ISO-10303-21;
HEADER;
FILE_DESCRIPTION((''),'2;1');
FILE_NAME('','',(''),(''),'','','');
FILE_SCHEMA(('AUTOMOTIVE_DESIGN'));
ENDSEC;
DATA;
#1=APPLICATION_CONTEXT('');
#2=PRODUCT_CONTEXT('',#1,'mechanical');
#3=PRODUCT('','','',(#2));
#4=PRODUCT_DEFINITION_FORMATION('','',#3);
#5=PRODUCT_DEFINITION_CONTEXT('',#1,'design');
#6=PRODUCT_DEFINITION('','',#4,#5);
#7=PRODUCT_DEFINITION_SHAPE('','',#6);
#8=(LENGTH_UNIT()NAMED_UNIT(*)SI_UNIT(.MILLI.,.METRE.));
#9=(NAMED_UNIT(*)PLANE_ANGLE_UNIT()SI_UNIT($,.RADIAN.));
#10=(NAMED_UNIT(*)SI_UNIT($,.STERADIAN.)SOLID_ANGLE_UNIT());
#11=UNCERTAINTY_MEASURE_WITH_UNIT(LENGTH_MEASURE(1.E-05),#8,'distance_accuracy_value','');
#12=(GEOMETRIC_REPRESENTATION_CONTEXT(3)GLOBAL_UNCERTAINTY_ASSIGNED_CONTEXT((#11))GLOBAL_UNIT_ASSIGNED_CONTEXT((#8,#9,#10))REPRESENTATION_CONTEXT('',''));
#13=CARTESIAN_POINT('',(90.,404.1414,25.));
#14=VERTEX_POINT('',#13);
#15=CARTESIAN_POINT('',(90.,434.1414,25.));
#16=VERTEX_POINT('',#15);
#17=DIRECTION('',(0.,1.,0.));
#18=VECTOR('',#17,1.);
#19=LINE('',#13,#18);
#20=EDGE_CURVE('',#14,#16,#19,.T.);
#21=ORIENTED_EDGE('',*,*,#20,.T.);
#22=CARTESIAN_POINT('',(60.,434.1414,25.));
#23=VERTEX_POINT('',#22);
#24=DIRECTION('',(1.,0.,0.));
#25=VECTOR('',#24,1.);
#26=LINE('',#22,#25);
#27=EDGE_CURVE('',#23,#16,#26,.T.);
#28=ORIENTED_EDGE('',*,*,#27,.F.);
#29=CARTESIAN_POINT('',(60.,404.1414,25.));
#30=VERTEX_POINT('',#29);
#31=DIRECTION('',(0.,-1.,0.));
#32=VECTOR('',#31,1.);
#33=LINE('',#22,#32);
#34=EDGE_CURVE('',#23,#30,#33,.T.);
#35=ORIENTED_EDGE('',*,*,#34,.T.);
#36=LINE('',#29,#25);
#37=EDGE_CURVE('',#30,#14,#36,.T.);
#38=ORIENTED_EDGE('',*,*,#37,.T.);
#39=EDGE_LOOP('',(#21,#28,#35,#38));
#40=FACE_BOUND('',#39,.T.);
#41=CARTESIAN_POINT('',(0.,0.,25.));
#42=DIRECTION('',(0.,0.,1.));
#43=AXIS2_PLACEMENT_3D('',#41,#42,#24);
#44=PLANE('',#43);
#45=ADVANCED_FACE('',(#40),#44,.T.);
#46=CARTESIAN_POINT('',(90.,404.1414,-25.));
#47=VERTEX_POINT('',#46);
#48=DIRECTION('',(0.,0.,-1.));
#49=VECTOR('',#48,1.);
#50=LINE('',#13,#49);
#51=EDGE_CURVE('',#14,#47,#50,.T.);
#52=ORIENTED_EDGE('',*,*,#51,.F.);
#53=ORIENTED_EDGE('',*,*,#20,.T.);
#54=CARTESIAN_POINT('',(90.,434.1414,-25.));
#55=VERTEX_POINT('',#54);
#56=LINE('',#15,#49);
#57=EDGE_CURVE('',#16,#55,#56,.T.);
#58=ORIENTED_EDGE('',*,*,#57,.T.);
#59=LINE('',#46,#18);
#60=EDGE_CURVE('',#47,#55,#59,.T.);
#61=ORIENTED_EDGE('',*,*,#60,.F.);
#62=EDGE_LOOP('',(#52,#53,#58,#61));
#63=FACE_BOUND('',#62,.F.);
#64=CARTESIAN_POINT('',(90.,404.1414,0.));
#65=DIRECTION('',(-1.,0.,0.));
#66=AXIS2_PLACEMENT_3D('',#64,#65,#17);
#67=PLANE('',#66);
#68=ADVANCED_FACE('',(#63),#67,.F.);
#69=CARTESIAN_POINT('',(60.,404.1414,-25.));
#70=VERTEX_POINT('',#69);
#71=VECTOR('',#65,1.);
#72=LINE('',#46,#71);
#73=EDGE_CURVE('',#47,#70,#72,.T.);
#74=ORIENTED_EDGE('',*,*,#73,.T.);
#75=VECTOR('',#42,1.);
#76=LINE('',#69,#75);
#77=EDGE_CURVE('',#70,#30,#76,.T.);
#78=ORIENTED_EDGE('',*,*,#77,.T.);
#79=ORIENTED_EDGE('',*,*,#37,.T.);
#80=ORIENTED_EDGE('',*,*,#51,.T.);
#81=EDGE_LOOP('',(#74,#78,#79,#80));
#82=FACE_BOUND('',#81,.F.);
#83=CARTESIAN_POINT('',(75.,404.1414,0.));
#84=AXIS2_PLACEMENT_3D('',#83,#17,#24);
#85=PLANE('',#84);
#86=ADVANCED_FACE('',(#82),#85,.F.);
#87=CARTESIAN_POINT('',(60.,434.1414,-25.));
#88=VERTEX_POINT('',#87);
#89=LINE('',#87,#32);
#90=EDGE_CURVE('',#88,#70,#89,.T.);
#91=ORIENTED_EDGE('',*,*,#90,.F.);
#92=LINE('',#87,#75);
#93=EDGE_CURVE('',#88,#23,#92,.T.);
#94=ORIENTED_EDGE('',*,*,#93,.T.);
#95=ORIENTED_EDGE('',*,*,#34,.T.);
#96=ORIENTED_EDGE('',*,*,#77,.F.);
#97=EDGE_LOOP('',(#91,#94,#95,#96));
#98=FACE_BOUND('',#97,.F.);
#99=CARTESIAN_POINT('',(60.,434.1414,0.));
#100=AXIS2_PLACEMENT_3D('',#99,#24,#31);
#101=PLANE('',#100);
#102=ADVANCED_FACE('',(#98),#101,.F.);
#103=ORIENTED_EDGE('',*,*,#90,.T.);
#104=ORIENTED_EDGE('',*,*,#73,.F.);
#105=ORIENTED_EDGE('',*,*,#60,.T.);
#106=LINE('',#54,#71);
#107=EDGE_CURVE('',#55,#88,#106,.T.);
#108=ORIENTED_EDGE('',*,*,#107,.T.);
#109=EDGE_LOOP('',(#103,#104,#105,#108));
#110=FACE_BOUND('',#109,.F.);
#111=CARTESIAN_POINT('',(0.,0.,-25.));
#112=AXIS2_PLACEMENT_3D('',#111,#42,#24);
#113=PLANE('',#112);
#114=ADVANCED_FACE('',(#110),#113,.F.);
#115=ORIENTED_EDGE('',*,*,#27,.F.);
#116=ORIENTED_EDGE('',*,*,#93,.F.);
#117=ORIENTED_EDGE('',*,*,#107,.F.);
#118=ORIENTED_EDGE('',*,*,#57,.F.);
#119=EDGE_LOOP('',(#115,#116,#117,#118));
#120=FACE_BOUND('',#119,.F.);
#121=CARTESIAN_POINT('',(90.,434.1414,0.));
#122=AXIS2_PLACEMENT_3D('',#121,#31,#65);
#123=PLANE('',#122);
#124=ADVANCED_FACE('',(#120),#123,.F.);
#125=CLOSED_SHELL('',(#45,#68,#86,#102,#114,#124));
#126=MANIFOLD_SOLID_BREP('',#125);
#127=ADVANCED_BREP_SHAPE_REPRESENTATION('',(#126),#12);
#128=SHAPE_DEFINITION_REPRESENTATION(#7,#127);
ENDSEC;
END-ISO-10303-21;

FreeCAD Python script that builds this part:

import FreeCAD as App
import Part
import Sketcher
Q = App.Units.Quantity

doc = App.newDocument("Part")
params = doc.addObject("Spreadsheet::Sheet", "Params")
for row, (alias, value) in enumerate([
    ("sketch1_width", "30 mm"),
    ("pad1_length", "50 mm"),
], start=1):
    params.set(f"A{row}", alias)
    params.set(f"B{row}", "=" + value)
    params.setAlias(f"B{row}", alias)

body = doc.addObject("PartDesign::Body", "Body")

# Sketch on XY plane
sketch1 = body.newObject("Sketcher::SketchObject", "Sketch")
sketch1.AttachmentSupport = (doc.getObject("XY_Plane"), [""])
sketch1.MapMode = "FlatFace"
sketch1.addGeometry([
    Part.LineSegment(App.Vector(90, 434.1414, 0), App.Vector(60, 434.1414, 0)),
    Part.LineSegment(App.Vector(60, 434.1414, 0), App.Vector(60, 404.1414, 0)),
    Part.LineSegment(App.Vector(60, 404.1414, 0), App.Vector(90, 404.1414, 0)),
    Part.LineSegment(App.Vector(90, 404.1414, 0), App.Vector(90, 434.1414, 0)),
], False)
sketch1.addConstraint([
    Sketcher.Constraint("Coincident", 0, 2, 1, 1),
    Sketcher.Constraint("Coincident", 1, 2, 2, 1),
    Sketcher.Constraint("Coincident", 2, 2, 3, 1),
    Sketcher.Constraint("Coincident", 3, 2, 0, 1),
    Sketcher.Constraint("Horizontal", 0),
    Sketcher.Constraint("Vertical", 1),
    Sketcher.Constraint("Horizontal", 2),
    Sketcher.Constraint("Vertical", 3),
    Sketcher.Constraint("Equal", 2, 1),
    Sketcher.Constraint("DistanceX", 0, 2, 0, 1, Q("30 mm")),
    Sketcher.Constraint("DistanceX", -1, 1, 0, 2, Q("60 mm")),
    Sketcher.Constraint("DistanceY", -1, 1, 0, 2, Q("434.1414 mm")),
])
sketch1.setExpression("Constraints[9]", "Params.sketch1_width")
pad1 = body.newObject("PartDesign::Pad", "Pad")
pad1.Profile = sketch1
pad1.setExpression("Length", "Params.pad1_length")
pad1.Midplane = True

doc.recompute()
